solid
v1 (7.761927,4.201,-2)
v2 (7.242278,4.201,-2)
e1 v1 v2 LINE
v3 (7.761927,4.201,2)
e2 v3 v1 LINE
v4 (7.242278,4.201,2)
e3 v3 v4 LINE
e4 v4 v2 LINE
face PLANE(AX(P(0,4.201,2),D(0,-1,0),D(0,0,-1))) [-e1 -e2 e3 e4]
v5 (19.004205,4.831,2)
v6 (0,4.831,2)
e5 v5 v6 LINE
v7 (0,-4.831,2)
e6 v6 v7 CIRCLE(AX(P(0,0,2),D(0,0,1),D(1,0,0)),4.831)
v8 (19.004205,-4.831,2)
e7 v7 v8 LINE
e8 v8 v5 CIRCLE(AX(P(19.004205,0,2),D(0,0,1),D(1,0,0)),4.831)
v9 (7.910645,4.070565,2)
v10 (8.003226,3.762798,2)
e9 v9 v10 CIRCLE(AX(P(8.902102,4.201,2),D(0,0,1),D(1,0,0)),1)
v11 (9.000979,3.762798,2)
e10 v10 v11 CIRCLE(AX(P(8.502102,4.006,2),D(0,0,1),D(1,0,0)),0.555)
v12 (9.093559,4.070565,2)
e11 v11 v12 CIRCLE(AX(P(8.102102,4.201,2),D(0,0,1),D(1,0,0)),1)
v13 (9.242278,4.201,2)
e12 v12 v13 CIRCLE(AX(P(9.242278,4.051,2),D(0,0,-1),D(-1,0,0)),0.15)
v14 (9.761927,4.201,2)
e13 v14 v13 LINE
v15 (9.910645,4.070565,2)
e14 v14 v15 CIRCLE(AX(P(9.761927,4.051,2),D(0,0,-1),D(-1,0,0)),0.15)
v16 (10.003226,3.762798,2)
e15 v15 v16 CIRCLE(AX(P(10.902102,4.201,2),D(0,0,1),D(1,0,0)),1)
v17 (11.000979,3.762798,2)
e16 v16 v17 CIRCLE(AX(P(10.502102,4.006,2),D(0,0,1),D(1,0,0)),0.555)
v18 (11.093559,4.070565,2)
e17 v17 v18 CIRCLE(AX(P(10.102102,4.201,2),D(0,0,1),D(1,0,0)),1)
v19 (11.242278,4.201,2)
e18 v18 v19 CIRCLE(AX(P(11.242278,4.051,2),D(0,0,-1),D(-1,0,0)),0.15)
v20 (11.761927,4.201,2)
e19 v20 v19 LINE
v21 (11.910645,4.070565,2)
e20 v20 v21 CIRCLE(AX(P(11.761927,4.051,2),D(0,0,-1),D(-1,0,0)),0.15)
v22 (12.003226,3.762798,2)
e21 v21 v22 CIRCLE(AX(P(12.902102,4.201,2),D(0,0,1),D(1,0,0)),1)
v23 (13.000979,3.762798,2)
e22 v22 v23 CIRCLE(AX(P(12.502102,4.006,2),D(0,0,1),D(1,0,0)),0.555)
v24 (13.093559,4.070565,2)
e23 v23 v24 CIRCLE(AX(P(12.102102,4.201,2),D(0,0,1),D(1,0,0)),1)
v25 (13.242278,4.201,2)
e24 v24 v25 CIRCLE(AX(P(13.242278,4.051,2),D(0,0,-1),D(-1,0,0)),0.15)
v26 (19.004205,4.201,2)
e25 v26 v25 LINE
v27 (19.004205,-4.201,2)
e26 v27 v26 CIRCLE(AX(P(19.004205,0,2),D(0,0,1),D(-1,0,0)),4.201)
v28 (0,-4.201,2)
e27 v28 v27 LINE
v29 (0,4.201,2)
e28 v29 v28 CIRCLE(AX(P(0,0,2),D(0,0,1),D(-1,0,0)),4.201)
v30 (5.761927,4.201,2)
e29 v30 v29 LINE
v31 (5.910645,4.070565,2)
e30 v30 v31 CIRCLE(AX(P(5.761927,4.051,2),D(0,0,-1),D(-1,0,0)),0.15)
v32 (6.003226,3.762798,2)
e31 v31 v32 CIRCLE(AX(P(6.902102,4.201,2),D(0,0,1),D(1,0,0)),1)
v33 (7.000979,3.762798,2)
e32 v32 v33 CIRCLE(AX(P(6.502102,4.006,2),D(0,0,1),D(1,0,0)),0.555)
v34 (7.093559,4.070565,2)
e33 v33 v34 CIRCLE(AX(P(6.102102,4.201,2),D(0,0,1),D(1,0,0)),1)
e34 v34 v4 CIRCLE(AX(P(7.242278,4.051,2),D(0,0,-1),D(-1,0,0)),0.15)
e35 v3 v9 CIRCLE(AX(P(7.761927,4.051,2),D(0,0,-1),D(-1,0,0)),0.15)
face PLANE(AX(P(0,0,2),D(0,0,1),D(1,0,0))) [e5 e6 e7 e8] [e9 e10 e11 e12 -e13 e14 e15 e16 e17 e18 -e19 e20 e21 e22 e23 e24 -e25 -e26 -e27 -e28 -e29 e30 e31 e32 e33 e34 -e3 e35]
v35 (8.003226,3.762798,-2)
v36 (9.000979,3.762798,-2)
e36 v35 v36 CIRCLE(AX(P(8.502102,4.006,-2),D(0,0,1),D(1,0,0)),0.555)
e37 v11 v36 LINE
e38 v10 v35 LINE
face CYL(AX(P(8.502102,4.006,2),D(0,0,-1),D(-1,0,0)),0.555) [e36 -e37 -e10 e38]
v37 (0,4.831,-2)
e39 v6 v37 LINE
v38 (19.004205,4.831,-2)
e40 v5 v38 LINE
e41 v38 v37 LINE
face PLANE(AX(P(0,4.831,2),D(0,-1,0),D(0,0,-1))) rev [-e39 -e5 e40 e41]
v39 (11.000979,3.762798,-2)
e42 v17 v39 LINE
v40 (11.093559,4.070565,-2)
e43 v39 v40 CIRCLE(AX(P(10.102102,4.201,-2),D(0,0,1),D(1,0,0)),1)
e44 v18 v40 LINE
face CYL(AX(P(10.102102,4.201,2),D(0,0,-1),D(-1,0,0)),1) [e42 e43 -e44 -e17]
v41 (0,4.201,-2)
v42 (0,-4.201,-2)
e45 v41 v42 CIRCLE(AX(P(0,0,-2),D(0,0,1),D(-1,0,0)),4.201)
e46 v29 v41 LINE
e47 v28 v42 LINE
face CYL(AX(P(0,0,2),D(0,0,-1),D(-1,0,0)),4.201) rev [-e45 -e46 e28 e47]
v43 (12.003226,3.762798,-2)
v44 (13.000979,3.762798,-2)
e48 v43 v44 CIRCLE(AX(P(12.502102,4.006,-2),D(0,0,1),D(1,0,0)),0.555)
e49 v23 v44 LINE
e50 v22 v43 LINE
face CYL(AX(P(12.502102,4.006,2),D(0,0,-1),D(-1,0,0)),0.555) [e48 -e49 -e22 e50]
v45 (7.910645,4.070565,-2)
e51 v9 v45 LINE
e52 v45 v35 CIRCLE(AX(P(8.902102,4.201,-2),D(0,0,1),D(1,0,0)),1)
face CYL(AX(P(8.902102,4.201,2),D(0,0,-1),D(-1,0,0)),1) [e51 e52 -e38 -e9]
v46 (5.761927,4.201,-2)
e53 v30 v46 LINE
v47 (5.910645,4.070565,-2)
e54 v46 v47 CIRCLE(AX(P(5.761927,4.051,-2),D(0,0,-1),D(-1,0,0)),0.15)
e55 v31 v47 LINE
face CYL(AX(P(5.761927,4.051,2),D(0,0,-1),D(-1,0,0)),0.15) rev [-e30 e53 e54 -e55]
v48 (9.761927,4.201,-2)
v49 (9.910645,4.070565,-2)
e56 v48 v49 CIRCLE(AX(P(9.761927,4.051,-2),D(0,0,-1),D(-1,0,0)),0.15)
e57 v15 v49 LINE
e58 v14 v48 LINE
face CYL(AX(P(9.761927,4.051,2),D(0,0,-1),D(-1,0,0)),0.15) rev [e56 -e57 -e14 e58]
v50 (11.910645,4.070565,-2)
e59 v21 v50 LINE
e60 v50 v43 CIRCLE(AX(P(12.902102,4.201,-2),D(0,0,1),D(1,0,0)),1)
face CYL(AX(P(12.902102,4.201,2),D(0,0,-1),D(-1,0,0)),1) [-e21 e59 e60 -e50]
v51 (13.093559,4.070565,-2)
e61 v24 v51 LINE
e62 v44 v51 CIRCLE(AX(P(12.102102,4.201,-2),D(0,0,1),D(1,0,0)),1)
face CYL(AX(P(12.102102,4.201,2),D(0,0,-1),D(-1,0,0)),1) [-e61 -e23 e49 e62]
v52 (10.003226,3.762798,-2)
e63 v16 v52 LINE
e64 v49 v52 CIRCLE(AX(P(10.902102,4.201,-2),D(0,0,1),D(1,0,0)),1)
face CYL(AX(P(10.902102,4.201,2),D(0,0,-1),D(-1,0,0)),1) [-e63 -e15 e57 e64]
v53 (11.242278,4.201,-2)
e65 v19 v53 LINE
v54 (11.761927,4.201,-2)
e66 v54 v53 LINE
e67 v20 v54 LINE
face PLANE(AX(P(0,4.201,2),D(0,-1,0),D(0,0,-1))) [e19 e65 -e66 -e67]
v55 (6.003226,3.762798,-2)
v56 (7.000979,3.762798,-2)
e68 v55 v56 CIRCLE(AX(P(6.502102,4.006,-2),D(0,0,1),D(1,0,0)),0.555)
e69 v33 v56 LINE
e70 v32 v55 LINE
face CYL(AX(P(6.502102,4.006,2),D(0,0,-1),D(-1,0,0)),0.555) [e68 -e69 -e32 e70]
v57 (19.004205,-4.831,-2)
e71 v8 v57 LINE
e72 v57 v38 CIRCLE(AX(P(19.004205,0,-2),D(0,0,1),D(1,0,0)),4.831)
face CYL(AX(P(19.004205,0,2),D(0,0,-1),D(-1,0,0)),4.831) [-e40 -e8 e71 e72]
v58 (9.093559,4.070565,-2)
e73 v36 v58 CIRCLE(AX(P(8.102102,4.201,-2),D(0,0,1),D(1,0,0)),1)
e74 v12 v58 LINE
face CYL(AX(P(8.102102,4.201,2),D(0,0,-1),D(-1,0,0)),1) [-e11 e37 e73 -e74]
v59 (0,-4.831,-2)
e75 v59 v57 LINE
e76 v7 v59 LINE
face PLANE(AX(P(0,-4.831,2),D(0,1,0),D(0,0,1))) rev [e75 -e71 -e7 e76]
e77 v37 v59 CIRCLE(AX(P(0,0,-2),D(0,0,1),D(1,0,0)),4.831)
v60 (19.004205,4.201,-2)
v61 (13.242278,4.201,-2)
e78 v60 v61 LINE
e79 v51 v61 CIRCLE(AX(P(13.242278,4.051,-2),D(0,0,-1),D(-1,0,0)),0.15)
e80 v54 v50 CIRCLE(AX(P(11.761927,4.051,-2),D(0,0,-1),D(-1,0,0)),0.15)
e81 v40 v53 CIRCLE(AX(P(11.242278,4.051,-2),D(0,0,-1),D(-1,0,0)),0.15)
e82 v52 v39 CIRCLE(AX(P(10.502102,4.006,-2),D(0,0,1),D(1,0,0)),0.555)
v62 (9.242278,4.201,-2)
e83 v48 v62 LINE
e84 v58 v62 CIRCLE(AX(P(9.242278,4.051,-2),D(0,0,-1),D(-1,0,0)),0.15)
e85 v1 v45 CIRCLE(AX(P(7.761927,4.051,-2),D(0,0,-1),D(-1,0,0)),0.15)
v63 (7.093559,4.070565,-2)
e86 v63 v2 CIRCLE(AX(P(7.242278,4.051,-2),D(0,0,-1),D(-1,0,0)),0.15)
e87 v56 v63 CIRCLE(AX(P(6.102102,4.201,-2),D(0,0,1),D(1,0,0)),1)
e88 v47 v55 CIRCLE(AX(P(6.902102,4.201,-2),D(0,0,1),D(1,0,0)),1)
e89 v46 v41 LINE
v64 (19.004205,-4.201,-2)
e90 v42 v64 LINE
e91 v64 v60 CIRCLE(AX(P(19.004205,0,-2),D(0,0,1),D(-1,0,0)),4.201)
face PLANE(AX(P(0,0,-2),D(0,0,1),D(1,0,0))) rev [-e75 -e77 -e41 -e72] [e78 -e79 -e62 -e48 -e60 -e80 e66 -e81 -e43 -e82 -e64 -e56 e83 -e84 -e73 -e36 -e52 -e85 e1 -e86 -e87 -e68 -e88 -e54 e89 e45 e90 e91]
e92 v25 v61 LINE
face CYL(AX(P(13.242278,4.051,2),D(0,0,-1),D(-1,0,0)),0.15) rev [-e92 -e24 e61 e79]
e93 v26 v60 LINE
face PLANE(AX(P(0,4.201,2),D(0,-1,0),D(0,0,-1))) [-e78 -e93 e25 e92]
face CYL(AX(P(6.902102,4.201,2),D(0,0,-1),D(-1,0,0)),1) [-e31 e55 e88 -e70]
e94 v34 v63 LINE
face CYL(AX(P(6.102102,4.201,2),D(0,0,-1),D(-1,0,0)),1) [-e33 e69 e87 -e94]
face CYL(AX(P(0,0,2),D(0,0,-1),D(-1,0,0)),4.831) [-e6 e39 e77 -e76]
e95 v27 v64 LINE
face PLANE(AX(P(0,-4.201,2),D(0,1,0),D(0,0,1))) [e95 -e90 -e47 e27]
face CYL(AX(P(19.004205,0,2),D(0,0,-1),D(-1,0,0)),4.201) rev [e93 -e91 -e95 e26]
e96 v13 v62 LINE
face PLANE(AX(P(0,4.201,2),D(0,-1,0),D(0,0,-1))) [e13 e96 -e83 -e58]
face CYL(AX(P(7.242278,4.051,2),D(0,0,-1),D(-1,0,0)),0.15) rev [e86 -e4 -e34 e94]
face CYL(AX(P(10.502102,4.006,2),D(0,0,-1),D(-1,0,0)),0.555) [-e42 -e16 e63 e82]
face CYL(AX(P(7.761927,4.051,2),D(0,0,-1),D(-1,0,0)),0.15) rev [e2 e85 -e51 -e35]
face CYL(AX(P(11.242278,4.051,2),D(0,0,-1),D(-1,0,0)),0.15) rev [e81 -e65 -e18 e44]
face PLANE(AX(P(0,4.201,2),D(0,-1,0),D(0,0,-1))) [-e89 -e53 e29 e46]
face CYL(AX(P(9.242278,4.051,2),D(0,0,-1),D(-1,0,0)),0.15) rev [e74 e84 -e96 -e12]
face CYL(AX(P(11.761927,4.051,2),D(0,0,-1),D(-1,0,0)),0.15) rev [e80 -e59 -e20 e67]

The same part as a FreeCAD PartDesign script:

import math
import FreeCAD as App
import Part
import Sketcher
Q = App.Units.Quantity

doc = App.newDocument("Part")
body = doc.addObject("PartDesign::Body", "Body")

sketch1 = body.newObject("Sketcher::SketchObject", "Sketch")
sketch1.AttachmentSupport = (doc.getObject("XY_Plane"), [""])
sketch1.MapMode = "FlatFace"
sketch1.addGeometry(Part.LineSegment(App.Vector(19.004205, 4.831, 0), App.Vector(0, 4.831, 0)), False)
sketch1.addGeometry(Part.ArcOfCircle(Part.Circle(App.Vector(0, 0, 0), App.Vector(0, 0, 1), 4.831), math.radians(90), math.radians(270)), False)
sketch1.addGeometry(Part.LineSegment(App.Vector(0, -4.831, 0), App.Vector(19.004205, -4.831, 0)), False)
sketch1.addGeometry(Part.ArcOfCircle(Part.Circle(App.Vector(19.004205, 0, 0), App.Vector(0, 0, 1), 4.831), math.radians(-90), math.radians(90)), False)
sketch1.addGeometry(Part.LineSegment(App.Vector(0, 4.201, 0), App.Vector(19.004205, 4.201, 0)), False)
sketch1.addGeometry(Part.ArcOfCircle(Part.Circle(App.Vector(19.004205, 0, 0), App.Vector(0, 0, 1), 4.201), math.radians(-90), math.radians(90)), False)
sketch1.addGeometry(Part.LineSegment(App.Vector(19.004205, -4.201, 0), App.Vector(0, -4.201, 0)), False)
sketch1.addGeometry(Part.ArcOfCircle(Part.Circle(App.Vector(0, 0, 0), App.Vector(0, 0, 1), 4.201), math.radians(90), math.radians(270)), False)
sketch1.addConstraint(Sketcher.Constraint("Tangent", 0, 2, 1, 1))
sketch1.addConstraint(Sketcher.Constraint("Tangent", 1, 2, 2, 1))
sketch1.addConstraint(Sketcher.Constraint("Tangent", 2, 2, 3, 1))
sketch1.addConstraint(Sketcher.Constraint("Tangent", 3, 2, 0, 1))
sketch1.addConstraint(Sketcher.Constraint("Tangent", 4, 2, 5, 2))
sketch1.addConstraint(Sketcher.Constraint("Tangent", 5, 1, 6, 1))
sketch1.addConstraint(Sketcher.Constraint("Tangent", 6, 2, 7, 2))
sketch1.addConstraint(Sketcher.Constraint("Tangent", 7, 1, 4, 1))
sketch1.addConstraint(Sketcher.Constraint("Horizontal", 0))
sketch1.addConstraint(Sketcher.Constraint("Horizontal", 2))
sketch1.addConstraint(Sketcher.Constraint("Horizontal", 4))
sketch1.addConstraint(Sketcher.Constraint("Horizontal", 6))
sketch1.addConstraint(Sketcher.Constraint("Coincident", 1, 3, -1, 1))
sketch1.addConstraint(Sketcher.Constraint("Coincident", 7, 3, -1, 1))
sketch1.addConstraint(Sketcher.Constraint("Vertical", 5, 3, 2, 2))
sketch1.addConstraint(Sketcher.Constraint("Radius", 1, Q("4.831 mm")))
sketch1.addConstraint(Sketcher.Constraint("Radius", 5, Q("4.201 mm")))
sketch1.addConstraint(Sketcher.Constraint("DistanceX", 0, 2, 0, 1, Q("19.004205 mm")))
pad1 = body.newObject("PartDesign::Pad", "Pad")
pad1.Profile = sketch1
pad1.Length = 4
pad1.Midplane = True

sketch2 = body.newObject("Sketcher::SketchObject", "Sketch001")
sketch2.AttachmentSupport = (doc.getObject("XY_Plane"), [""])
sketch2.MapMode = "FlatFace"
sketch2.addGeometry(Part.LineSegment(App.Vector(5.502102, 4.831, 0), App.Vector(5.502102, 4.201, 0)), False)
sketch2.addGeometry(Part.LineSegment(App.Vector(5.502102, 4.201, 0), App.Vector(5.761927, 4.201, 0)), False)
sketch2.addGeometry(Part.ArcOfCircle(Part.Circle(App.Vector(5.761927, 4.051, 0), App.Vector(0, 0, 1), 0.15), math.radians(7.494717), math.radians(90)), False)
sketch2.addGeometry(Part.ArcOfCircle(Part.Circle(App.Vector(6.902102, 4.201, 0), App.Vector(0, 0, 1), 1), math.radians(-172.505283), math.radians(-154.010766)), False)
sketch2.addGeometry(Part.ArcOfCircle(Part.Circle(App.Vector(6.502102, 4.006, 0), App.Vector(0, 0, 1), 0.555), math.radians(-154.010766), math.radians(-25.989234)), False)
sketch2.addGeometry(Part.ArcOfCircle(Part.Circle(App.Vector(6.102102, 4.201, 0), App.Vector(0, 0, 1), 1), math.radians(-25.989233), math.radians(-7.494718)), False)
sketch2.addGeometry(Part.ArcOfCircle(Part.Circle(App.Vector(7.242278, 4.051, 0), App.Vector(0, 0, 1), 0.15), math.radians(90), math.radians(172.505283)), False)
sketch2.addGeometry(Part.LineSegment(App.Vector(7.242278, 4.201, 0), App.Vector(7.761927, 4.201, 0)), False)
sketch2.addGeometry(Part.ArcOfCircle(Part.Circle(App.Vector(7.761927, 4.051, 0), App.Vector(0, 0, 1), 0.15), math.radians(7.494717), math.radians(90)), False)
sketch2.addGeometry(Part.ArcOfCircle(Part.Circle(App.Vector(8.902102, 4.201, 0), App.Vector(0, 0, 1), 1), math.radians(-172.505283), math.radians(-154.010766)), False)
sketch2.addGeometry(Part.ArcOfCircle(Part.Circle(App.Vector(8.502102, 4.006, 0), App.Vector(0, 0, 1), 0.555), math.radians(-154.010766), math.radians(-25.989234)), False)
sketch2.addGeometry(Part.ArcOfCircle(Part.Circle(App.Vector(8.102102, 4.201, 0), App.Vector(0, 0, 1), 1), math.radians(-25.989233), math.radians(-7.494718)), False)
sketch2.addGeometry(Part.ArcOfCircle(Part.Circle(App.Vector(9.242278, 4.051, 0), App.Vector(0, 0, 1), 0.15), math.radians(90), math.radians(172.505283)), False)
sketch2.addGeometry(Part.LineSegment(App.Vector(9.242278, 4.201, 0), App.Vector(9.502102, 4.201, 0)), False)
sketch2.addGeometry(Part.LineSegment(App.Vector(9.502102, 4.201, 0), App.Vector(9.502102, 4.831, 0)), False)
sketch2.addGeometry(Part.LineSegment(App.Vector(9.502102, 4.831, 0), App.Vector(5.502102, 4.831, 0)), False)
sketch2.addConstraint(Sketcher.Constraint("Coincident", 0, 2, 1, 1))
sketch2.addConstraint(Sketcher.Constraint("Tangent", 1, 2, 2, 2))
sketch2.addConstraint(Sketcher.Constraint("Tangent", 2, 1, 3, 1))
sketch2.addConstraint(Sketcher.Constraint("Tangent", 3, 2, 4, 1))
sketch2.addConstraint(Sketcher.Constraint("Tangent", 4, 2, 5, 1))
sketch2.addConstraint(Sketcher.Constraint("Tangent", 5, 2, 6, 2))
sketch2.addConstraint(Sketcher.Constraint("Tangent", 6, 1, 7, 1))
sketch2.addConstraint(Sketcher.Constraint("Tangent", 7, 2, 8, 2))
sketch2.addConstraint(Sketcher.Constraint("Tangent", 8, 1, 9, 1))
sketch2.addConstraint(Sketcher.Constraint("Tangent", 9, 2, 10, 1))
sketch2.addConstraint(Sketcher.Constraint("Tangent", 10, 2, 11, 1))
sketch2.addConstraint(Sketcher.Constraint("Tangent", 11, 2, 12, 2))
sketch2.addConstraint(Sketcher.Constraint("Tangent", 12, 1, 13, 1))
sketch2.addConstraint(Sketcher.Constraint("Coincident", 13, 2, 14, 1))
sketch2.addConstraint(Sketcher.Constraint("Coincident", 14, 2, 15, 1))
sketch2.addConstraint(Sketcher.Constraint("Coincident", 15, 2, 0, 1))
sketch2.addConstraint(Sketcher.Constraint("Vertical", 0))
sketch2.addConstraint(Sketcher.Constraint("Horizontal", 1))
sketch2.addConstraint(Sketcher.Constraint("Horizontal", 7))
sketch2.addConstraint(Sketcher.Constraint("Horizontal", 13))
sketch2.addConstraint(Sketcher.Constraint("Vertical", 14))
sketch2.addConstraint(Sketcher.Constraint("Horizontal", 15))
sketch2.addConstraint(Sketcher.Constraint("Equal", 3, 5))
sketch2.addConstraint(Sketcher.Constraint("Equal", 2, 6))
sketch2.addConstraint(Sketcher.Constraint("Equal", 6, 8))
sketch2.addConstraint(Sketcher.Constraint("Equal", 5, 9))
sketch2.addConstraint(Sketcher.Constraint("Equal", 4, 10))
sketch2.addConstraint(Sketcher.Constraint("Equal", 9, 11))
sketch2.addConstraint(Sketcher.Constraint("Equal", 8, 12))
sketch2.addConstraint(Sketcher.Constraint("Horizontal", 3, 3, 5, 3))
sketch2.addConstraint(Sketcher.Constraint("Horizontal", 2, 3, 6, 3))
sketch2.addConstraint(Sketcher.Constraint("Horizontal", 5, 3, 9, 3))
sketch2.addConstraint(Sketcher.Constraint("Horizontal", 4, 3, 10, 3))
sketch2.addConstraint(Sketcher.Constraint("Horizontal", 9, 3, 11, 3))
sketch2.addConstraint(Sketcher.Constraint("Horizontal", 8, 3, 12, 3))
sketch2.addConstraint(Sketcher.Constraint("Horizontal", 11, 3, 0, 2))
sketch2.addConstraint(Sketcher.Constraint("Equal", 1, 13))
sketch2.addConstraint(Sketcher.Constraint("Radius", 3, Q("1 mm")))
sketch2.addConstraint(Sketcher.Constraint("DistanceX", 15, 2, 15, 1, Q("4 mm")))
sketch2.addConstraint(Sketcher.Constraint("Radius", 2, Q("0.15 mm")))
sketch2.addConstraint(Sketcher.Constraint("Radius", 4, Q("0.555 mm")))
sketch2.addConstraint(Sketcher.Constraint("DistanceX", 2, 3, 8, 3, Q("2 mm")))
sketch2.addConstraint(Sketcher.Constraint("DistanceY", 0, 2, 0, 1, Q("0.63 mm")))
sketch2.addConstraint(Sketcher.Constraint("DistanceX", 4, 3, 3, 3, Q("0.4 mm")))
sketch2.addConstraint(Sketcher.Constraint("DistanceY", -1, 1, 2, 3, Q("4.051 mm")))
sketch2.addConstraint(Sketcher.Constraint("DistanceX", -1, 1, 4, 2, Q("7.000979 mm")))
pad2 = body.newObject("PartDesign::Pad", "Pad001")
pad2.Profile = sketch2
pad2.Length = 4
pad2.Midplane = True
doc.recompute()

linearpattern = body.newObject("PartDesign::LinearPattern", "LinearPattern")
linearpattern.Originals = [pad2]
linearpattern.Direction = (doc.getObject("X_Axis"), [""])
linearpattern.Mode = "offset"
linearpattern.Offset = 4
linearpattern.Occurrences = 2
body.Tip = linearpattern

doc.recompute()
